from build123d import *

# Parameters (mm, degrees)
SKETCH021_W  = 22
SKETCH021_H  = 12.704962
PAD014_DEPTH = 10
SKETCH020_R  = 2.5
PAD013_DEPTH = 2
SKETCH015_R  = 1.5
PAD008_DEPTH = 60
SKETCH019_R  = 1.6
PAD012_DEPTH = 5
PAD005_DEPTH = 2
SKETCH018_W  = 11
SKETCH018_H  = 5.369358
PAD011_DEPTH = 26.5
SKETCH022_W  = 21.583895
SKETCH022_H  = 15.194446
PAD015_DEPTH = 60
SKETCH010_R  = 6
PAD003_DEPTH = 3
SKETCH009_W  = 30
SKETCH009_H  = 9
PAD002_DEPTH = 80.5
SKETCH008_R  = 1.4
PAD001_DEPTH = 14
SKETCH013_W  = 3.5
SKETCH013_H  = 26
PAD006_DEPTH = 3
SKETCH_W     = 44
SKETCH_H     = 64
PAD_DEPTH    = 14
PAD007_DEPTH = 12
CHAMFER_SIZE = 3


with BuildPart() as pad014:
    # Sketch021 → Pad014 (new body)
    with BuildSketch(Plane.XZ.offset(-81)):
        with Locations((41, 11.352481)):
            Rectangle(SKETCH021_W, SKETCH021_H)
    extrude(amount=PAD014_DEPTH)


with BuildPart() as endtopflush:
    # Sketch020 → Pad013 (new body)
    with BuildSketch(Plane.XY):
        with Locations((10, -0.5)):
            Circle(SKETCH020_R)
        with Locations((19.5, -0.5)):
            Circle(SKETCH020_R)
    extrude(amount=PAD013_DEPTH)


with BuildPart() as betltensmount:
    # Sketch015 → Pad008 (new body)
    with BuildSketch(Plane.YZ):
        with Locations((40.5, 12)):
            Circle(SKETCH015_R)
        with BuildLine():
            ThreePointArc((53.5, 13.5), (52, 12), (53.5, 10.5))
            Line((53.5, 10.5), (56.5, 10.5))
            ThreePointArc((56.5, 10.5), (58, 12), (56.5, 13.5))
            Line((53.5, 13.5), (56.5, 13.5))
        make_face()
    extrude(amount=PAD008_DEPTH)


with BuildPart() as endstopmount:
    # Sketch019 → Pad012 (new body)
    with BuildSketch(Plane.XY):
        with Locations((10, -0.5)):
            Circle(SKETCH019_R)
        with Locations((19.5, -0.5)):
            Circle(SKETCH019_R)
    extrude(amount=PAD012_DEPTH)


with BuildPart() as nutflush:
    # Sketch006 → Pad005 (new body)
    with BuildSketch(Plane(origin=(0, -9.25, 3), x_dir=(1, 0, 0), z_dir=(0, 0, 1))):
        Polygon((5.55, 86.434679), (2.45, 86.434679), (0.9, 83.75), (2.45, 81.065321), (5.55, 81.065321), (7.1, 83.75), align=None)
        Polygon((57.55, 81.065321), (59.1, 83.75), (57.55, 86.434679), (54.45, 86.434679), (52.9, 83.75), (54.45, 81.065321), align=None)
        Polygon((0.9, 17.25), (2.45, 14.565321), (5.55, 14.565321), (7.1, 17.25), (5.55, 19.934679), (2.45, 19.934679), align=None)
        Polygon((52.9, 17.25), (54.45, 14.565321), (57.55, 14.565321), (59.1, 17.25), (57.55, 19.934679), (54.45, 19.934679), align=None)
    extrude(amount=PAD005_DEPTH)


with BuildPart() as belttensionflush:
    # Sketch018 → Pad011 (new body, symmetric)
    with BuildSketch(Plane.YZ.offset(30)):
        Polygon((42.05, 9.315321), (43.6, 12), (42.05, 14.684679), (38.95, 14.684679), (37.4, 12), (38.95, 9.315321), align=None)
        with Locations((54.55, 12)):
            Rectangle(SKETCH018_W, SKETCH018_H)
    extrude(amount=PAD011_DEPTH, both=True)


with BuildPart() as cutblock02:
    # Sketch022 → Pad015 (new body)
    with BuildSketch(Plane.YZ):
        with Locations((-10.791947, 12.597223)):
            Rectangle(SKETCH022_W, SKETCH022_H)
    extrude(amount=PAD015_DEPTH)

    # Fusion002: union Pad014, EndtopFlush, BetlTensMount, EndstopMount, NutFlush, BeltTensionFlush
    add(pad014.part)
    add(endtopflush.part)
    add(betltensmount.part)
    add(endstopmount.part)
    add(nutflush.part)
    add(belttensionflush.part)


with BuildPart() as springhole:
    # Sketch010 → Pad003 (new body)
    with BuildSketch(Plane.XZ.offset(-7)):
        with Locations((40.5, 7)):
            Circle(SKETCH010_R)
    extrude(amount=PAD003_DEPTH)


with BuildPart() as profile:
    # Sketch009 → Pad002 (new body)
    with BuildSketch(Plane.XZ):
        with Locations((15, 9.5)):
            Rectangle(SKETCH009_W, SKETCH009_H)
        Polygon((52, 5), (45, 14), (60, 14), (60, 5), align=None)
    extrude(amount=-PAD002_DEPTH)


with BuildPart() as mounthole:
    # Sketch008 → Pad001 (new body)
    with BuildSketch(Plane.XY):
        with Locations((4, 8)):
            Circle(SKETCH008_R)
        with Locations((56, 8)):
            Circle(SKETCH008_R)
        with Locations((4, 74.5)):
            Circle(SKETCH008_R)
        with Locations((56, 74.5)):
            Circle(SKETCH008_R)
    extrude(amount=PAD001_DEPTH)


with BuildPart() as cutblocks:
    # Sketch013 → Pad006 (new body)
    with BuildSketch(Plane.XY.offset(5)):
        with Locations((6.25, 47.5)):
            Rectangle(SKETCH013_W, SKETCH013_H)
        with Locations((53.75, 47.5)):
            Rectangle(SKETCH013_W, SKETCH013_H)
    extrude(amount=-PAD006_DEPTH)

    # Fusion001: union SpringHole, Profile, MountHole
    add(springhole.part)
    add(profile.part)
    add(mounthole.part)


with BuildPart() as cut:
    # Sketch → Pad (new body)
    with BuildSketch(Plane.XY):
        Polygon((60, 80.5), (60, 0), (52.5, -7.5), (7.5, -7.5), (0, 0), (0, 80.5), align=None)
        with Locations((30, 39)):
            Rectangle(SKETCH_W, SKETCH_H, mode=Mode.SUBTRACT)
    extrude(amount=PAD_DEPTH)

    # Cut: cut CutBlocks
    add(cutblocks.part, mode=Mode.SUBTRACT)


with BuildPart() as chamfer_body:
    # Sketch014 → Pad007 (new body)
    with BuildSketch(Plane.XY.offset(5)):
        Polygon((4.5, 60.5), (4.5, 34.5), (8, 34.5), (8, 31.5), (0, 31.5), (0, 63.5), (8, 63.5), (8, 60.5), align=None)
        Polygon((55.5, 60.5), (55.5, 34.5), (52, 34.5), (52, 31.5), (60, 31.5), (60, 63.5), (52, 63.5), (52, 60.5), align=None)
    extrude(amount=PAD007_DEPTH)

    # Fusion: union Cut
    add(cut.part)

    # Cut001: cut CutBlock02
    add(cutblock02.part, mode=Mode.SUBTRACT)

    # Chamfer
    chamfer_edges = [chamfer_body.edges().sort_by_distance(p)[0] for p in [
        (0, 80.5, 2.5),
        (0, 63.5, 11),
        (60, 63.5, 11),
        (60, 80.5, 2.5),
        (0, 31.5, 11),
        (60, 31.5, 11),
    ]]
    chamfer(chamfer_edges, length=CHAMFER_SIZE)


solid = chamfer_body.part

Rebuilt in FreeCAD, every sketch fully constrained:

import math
import FreeCAD as App
import Part
import Sketcher

V = App.Vector
Q = App.Units.Quantity


def edges_at(feature, points):
    """Names of the edges that pass closest to the given points."""
    edges = feature.Shape.Edges
    near = lambda p: min(range(len(edges)), key=lambda i: edges[i].distToShape(Part.Vertex(*p))[0])
    return sorted({f"Edge{near(p) + 1}" for p in points})

doc = App.newDocument("Part")
body = doc.addObject("PartDesign::Body", "Body")

# Sketch on XZ plane
sketch1 = body.newObject("Sketcher::SketchObject", "Sketch")
sketch1.AttachmentSupport = (doc.getObject("XZ_Plane"), [""])
sketch1.MapMode = "FlatFace"
sketch1.AttachmentOffset = App.Placement(V(0, 0, -81), App.Rotation())
sketch1.addGeometry(Part.LineSegment(V(30, 17.704962, 0), V(30, 5, 0)), False)
sketch1.addGeometry(Part.LineSegment(V(30, 5, 0), V(52, 5, 0)), False)
sketch1.addGeometry(Part.LineSegment(V(52, 5, 0), V(52, 17.704962, 0)), False)
sketch1.addGeometry(Part.LineSegment(V(52, 17.704962, 0), V(30, 17.704962, 0)), False)
sketch1.addConstraint(Sketcher.Constraint("Coincident", 0, 2, 1, 1))
sketch1.addConstraint(Sketcher.Constraint("Coincident", 1, 2, 2, 1))
sketch1.addConstraint(Sketcher.Constraint("Coincident", 2, 2, 3, 1))
sketch1.addConstraint(Sketcher.Constraint("Coincident", 3, 2, 0, 1))
sketch1.addConstraint(Sketcher.Constraint("Vertical", 0))
sketch1.addConstraint(Sketcher.Constraint("Horizontal", 1))
sketch1.addConstraint(Sketcher.Constraint("Vertical", 2))
sketch1.addConstraint(Sketcher.Constraint("Horizontal", 3))
sketch1.addConstraint(Sketcher.Constraint("DistanceX", 1, 1, 1, 2, Q("22 mm")))
sketch1.addConstraint(Sketcher.Constraint("DistanceX", -1, 1, 0, 2, Q("30 mm")))
sketch1.addConstraint(Sketcher.Constraint("DistanceY", -1, 1, 0, 2, Q("5 mm")))
sketch1.addConstraint(Sketcher.Constraint("DistanceY", 0, 2, 0, 1, Q("12.704962 mm")))
pad1 = body.newObject("PartDesign::Pad", "Pad")
pad1.Profile = sketch1
pad1.Length = 10
body2 = doc.addObject("PartDesign::Body", "Body001")
body2.AllowCompound = True

# Sketch on XY plane
sketch2 = body2.newObject("Sketcher::SketchObject", "Sketch001")
sketch2.AttachmentSupport = (doc.getObject("XY_Plane001"), [""])
sketch2.MapMode = "FlatFace"
sketch2.addGeometry(Part.Circle(V(10, -0.5, 0), V(0, 0, 1), 2.5), False)
sketch2.addGeometry(Part.Circle(V(19.5, -0.5, 0), V(0, 0, 1), 2.5), False)
sketch2.addConstraint(Sketcher.Constraint("Equal", 0, 1))
sketch2.addConstraint(Sketcher.Constraint("Horizontal", 0, 3, 1, 3))
sketch2.addConstraint(Sketcher.Constraint("Diameter", 0, Q("5 mm")))
sketch2.addConstraint(Sketcher.Constraint("DistanceX", -1, 1, 0, 3, Q("10 mm")))
sketch2.addConstraint(Sketcher.Constraint("DistanceY", 0, 3, -1, 1, Q("0.5 mm")))
sketch2.addConstraint(Sketcher.Constraint("DistanceX", -1, 1, 1, 3, Q("19.5 mm")))
pad2 = body2.newObject("PartDesign::Pad", "Pad001")
pad2.Profile = sketch2
pad2.Length = 2
body3 = doc.addObject("PartDesign::Body", "Body002")
body3.AllowCompound = True

# Sketch on YZ plane
sketch3 = body3.newObject("Sketcher::SketchObject", "Sketch002")
sketch3.AttachmentSupport = (doc.getObject("YZ_Plane002"), [""])
sketch3.MapMode = "FlatFace"
sketch3.addGeometry(Part.Circle(V(40.5, 12, 0), V(0, 0, 1), 1.5), False)
sketch3.addGeometry(Part.ArcOfCircle(Part.Circle(V(53.5, 12, 0), V(0, 0, 1), 1.5), math.radians(90), math.radians(270)), False)
sketch3.addGeometry(Part.LineSegment(V(53.5, 10.5, 0), V(56.5, 10.5, 0)), False)
sketch3.addGeometry(Part.ArcOfCircle(Part.Circle(V(56.5, 12, 0), V(0, 0, 1), 1.5), math.radians(-90), math.radians(90)), False)
sketch3.addGeometry(Part.LineSegment(V(56.5, 13.5, 0), V(53.5, 13.5, 0)), False)
sketch3.addConstraint(Sketcher.Constraint("Tangent", 1, 2, 2, 1))
sketch3.addConstraint(Sketcher.Constraint("Tangent", 2, 2, 3, 1))
sketch3.addConstraint(Sketcher.Constraint("Tangent", 3, 2, 4, 1))
sketch3.addConstraint(Sketcher.Constraint("Tangent", 4, 2, 1, 1))
sketch3.addConstraint(Sketcher.Constraint("Horizontal", 2))
sketch3.addConstraint(Sketcher.Constraint("Horizontal", 4))
sketch3.addConstraint(Sketcher.Constraint("Equal", 0, 1))
sketch3.addConstraint(Sketcher.Constraint("Horizontal", 0, 3, 1, 3))
sketch3.addConstraint(Sketcher.Constraint("Diameter", 0, Q("3 mm")))
sketch3.addConstraint(Sketcher.Constraint("DistanceX", 2, 1, 2, 2, Q("3 mm")))
sketch3.addConstraint(Sketcher.Constraint("DistanceY", -1, 1, 0, 3, Q("12 mm")))
sketch3.addConstraint(Sketcher.Constraint("DistanceX", 0, 3, 1, 3, Q("13 mm")))
sketch3.addConstraint(Sketcher.Constraint("DistanceX", -1, 1, 0, 3, Q("40.5 mm")))
pad3 = body3.newObject("PartDesign::Pad", "Pad002")
pad3.Profile = sketch3
pad3.Length = 60
body4 = doc.addObject("PartDesign::Body", "Body003")
body4.AllowCompound = True

# Sketch on XY plane
sketch4 = body4.newObject("Sketcher::SketchObject", "Sketch003")
sketch4.AttachmentSupport = (doc.getObject("XY_Plane003"), [""])
sketch4.MapMode = "FlatFace"
sketch4.addGeometry(Part.Circle(V(10, -0.5, 0), V(0, 0, 1), 1.6), False)
sketch4.addGeometry(Part.Circle(V(19.5, -0.5, 0), V(0, 0, 1), 1.6), False)
sketch4.addConstraint(Sketcher.Constraint("Equal", 0, 1))
sketch4.addConstraint(Sketcher.Constraint("Horizontal", 0, 3, 1, 3))
sketch4.addConstraint(Sketcher.Constraint("Diameter", 0, Q("3.2 mm")))
sketch4.addConstraint(Sketcher.Constraint("DistanceX", -1, 1, 0, 3, Q("10 mm")))
sketch4.addConstraint(Sketcher.Constraint("DistanceY", 0, 3, -1, 1, Q("0.5 mm")))
sketch4.addConstraint(Sketcher.Constraint("DistanceX", -1, 1, 1, 3, Q("19.5 mm")))
pad4 = body4.newObject("PartDesign::Pad", "Pad003")
pad4.Profile = sketch4
pad4.Length = 5
body5 = doc.addObject("PartDesign::Body", "Body004")
body5.AllowCompound = True

# Sketch on XY plane
sketch5 = body5.newObject("Sketcher::SketchObject", "Sketch004")
sketch5.AttachmentSupport = (doc.getObject("XY_Plane004"), [""])
sketch5.MapMode = "FlatFace"
sketch5.AttachmentOffset = App.Placement(V(0, 0, 3), App.Rotation())
sketch5.addGeometry(Part.LineSegment(V(5.55, 77.184679, 0), V(2.45, 77.184679, 0)), False)
sketch5.addGeometry(Part.LineSegment(V(2.45, 77.184679, 0), V(0.9, 74.5, 0)), False)
sketch5.addGeometry(Part.LineSegment(V(0.9, 74.5, 0), V(2.45, 71.815321, 0)), False)
sketch5.addGeometry(Part.LineSegment(V(2.45, 71.815321, 0), V(5.55, 71.815321, 0)), False)
sketch5.addGeometry(Part.LineSegment(V(5.55, 71.815321, 0), V(7.1, 74.5, 0)), False)
sketch5.addGeometry(Part.LineSegment(V(7.1, 74.5, 0), V(5.55, 77.184679, 0)), False)
sketch5.addGeometry(Part.LineSegment(V(57.55, 71.815321, 0), V(59.1, 74.5, 0)), False)
sketch5.addGeometry(Part.LineSegment(V(59.1, 74.5, 0), V(57.55, 77.184679, 0)), False)
sketch5.addGeometry(Part.LineSegment(V(57.55, 77.184679, 0), V(54.45, 77.184679, 0)), False)
sketch5.addGeometry(Part.LineSegment(V(54.45, 77.184679, 0), V(52.9, 74.5, 0)), False)
sketch5.addGeometry(Part.LineSegment(V(52.9, 74.5, 0), V(54.45, 71.815321, 0)), False)
sketch5.addGeometry(Part.LineSegment(V(54.45, 71.815321, 0), V(57.55, 71.815321, 0)), False)
sketch5.addGeometry(Part.LineSegment(V(0.9, 8, 0), V(2.45, 5.315321, 0)), False)
sketch5.addGeometry(Part.LineSegment(V(2.45, 5.315321, 0), V(5.55, 5.315321, 0)), False)
sketch5.addGeometry(Part.LineSegment(V(5.55, 5.315321, 0), V(7.1, 8, 0)), False)
sketch5.addGeometry(Part.LineSegment(V(7.1, 8, 0), V(5.55, 10.684679, 0)), False)
sketch5.addGeometry(Part.LineSegment(V(5.55, 10.684679, 0), V(2.45, 10.684679, 0)), False)
sketch5.addGeometry(Part.LineSegment(V(2.45, 10.684679, 0), V(0.9, 8, 0)), False)
sketch5.addGeometry(Part.LineSegment(V(52.9, 8, 0), V(54.45, 5.315321, 0)), False)
sketch5.addGeometry(Part.LineSegment(V(54.45, 5.315321, 0), V(57.55, 5.315321, 0)), False)
sketch5.addGeometry(Part.LineSegment(V(57.55, 5.315321, 0), V(59.1, 8, 0)), False)
sketch5.addGeometry(Part.LineSegment(V(59.1, 8, 0), V(57.55, 10.684679, 0)), False)
sketch5.addGeometry(Part.LineSegment(V(57.55, 10.684679, 0), V(54.45, 10.684679, 0)), False)
sketch5.addGeometry(Part.LineSegment(V(54.45, 10.684679, 0), V(52.9, 8, 0)), False)
sketch5.addConstraint(Sketcher.Constraint("Coincident", 0, 2, 1, 1))
sketch5.addConstraint(Sketcher.Constraint("Coincident", 1, 2, 2, 1))
sketch5.addConstraint(Sketcher.Constraint("Coincident", 2, 2, 3, 1))
sketch5.addConstraint(Sketcher.Constraint("Coincident", 3, 2, 4, 1))
sketch5.addConstraint(Sketcher.Constraint("Coincident", 4, 2, 5, 1))
sketch5.addConstraint(Sketcher.Constraint("Coincident", 5, 2, 0, 1))
sketch5.addConstraint(Sketcher.Constraint("Coincident", 6, 2, 7, 1))
sketch5.addConstraint(Sketcher.Constraint("Coincident", 7, 2, 8, 1))
sketch5.addConstraint(Sketcher.Constraint("Coincident", 8, 2, 9, 1))
sketch5.addConstraint(Sketcher.Constraint("Coincident", 9, 2, 10, 1))
sketch5.addConstraint(Sketcher.Constraint("Coincident", 10, 2, 11, 1))
sketch5.addConstraint(Sketcher.Constraint("Coincident", 11, 2, 6, 1))
sketch5.addConstraint(Sketcher.Constraint("Coincident", 12, 2, 13, 1))
sketch5.addConstraint(Sketcher.Constraint("Coincident", 13, 2, 14, 1))
sketch5.addConstraint(Sketcher.Constraint("Coincident", 14, 2, 15, 1))
sketch5.addConstraint(Sketcher.Constraint("Coincident", 15, 2, 16, 1))
sketch5.addConstraint(Sketcher.Constraint("Coincident", 16, 2, 17, 1))
sketch5.addConstraint(Sketcher.Constraint("Coincident", 17, 2, 12, 1))
sketch5.addConstraint(Sketcher.Constraint("Coincident", 18, 2, 19, 1))
sketch5.addConstraint(Sketcher.Constraint("Coincident", 19, 2, 20, 1))
sketch5.addConstraint(Sketcher.Constraint("Coincident", 20, 2, 21, 1))
sketch5.addConstraint(Sketcher.Constraint("Coincident", 21, 2, 22, 1))
sketch5.addConstraint(Sketcher.Constraint("Coincident", 22, 2, 23, 1))
sketch5.addConstraint(Sketcher.Constraint("Coincident", 23, 2, 18, 1))
sketch5.addConstraint(Sketcher.Constraint("Horizontal", 0))
sketch5.addConstraint(Sketcher.Constraint("Horizontal", 3))
sketch5.addConstraint(Sketcher.Constraint("Horizontal", 8))
sketch5.addConstraint(Sketcher.Constraint("Horizontal", 11))
sketch5.addConstraint(Sketcher.Constraint("Horizontal", 13))
sketch5.addConstraint(Sketcher.Constraint("Horizontal", 16))
sketch5.addConstraint(Sketcher.Constraint("Horizontal", 19))
sketch5.addConstraint(Sketcher.Constraint("Horizontal", 22))
sketch5.addConstraint(Sketcher.Constraint("Parallel", 1, 4))
sketch5.addConstraint(Sketcher.Constraint("Parallel", 2, 5))
sketch5.addConstraint(Sketcher.Constraint("Parallel", 4, 6))
sketch5.addConstraint(Sketcher.Constraint("Parallel", 5, 7))
sketch5.addConstraint(Sketcher.Constraint("Parallel", 6, 9))
sketch5.addConstraint(Sketcher.Constraint("Parallel", 7, 10))
sketch5.addConstraint(Sketcher.Constraint("Parallel", 10, 12))
sketch5.addConstraint(Sketcher.Constraint("Parallel", 9, 14))
sketch5.addConstraint(Sketcher.Constraint("Parallel", 12, 15))
sketch5.addConstraint(Sketcher.Constraint("Parallel", 14, 17))
sketch5.addConstraint(Sketcher.Constraint("Parallel", 15, 18))
sketch5.addConstraint(Sketcher.Constraint("Parallel", 17, 20))
sketch5.addConstraint(Sketcher.Constraint("Parallel", 18, 21))
sketch5.addConstraint(Sketcher.Constraint("Parallel", 20, 23))
sketch5.addConstraint(Sketcher.Constraint("Horizontal", 1, 2, 4, 2))
sketch5.addConstraint(Sketcher.Constraint("Horizontal", 4, 2, 6, 2))
sketch5.addConstraint(Sketcher.Constraint("Horizontal", 5, 2, 7, 2))
sketch5.addConstraint(Sketcher.Constraint("Horizontal", 6, 2, 9, 2))
sketch5.addConstraint(Sketcher.Constraint("Horizontal", 3, 2, 10, 2))
sketch5.addConstraint(Sketcher.Constraint("Horizontal", 14, 2, 17, 2))
sketch5.addConstraint(Sketcher.Constraint("Horizontal", 13, 2, 18, 2))
sketch5.addConstraint(Sketcher.Constraint("Horizontal", 17, 2, 20, 2))
sketch5.addConstraint(Sketcher.Constraint("Horizontal", 16, 2, 21, 2))
sketch5.addConstraint(Sketcher.Constraint("Horizontal", 20, 2, 23, 2))
sketch5.addConstraint(Sketcher.Constraint("Vertical", 0, 2, 2, 2))
sketch5.addConstraint(Sketcher.Constraint("Vertical", 3, 2, 5, 2))
sketch5.addConstraint(Sketcher.Constraint("Vertical", 2, 2, 12, 2))
sketch5.addConstraint(Sketcher.Constraint("Vertical", 5, 2, 13, 2))
sketch5.addConstraint(Sketcher.Constraint("Vertical", 4, 2, 14, 2))
sketch5.addConstraint(Sketcher.Constraint("Vertical", 13, 2, 15, 2))
sketch5.addConstraint(Sketcher.Constraint("Vertical", 10, 2, 18, 2))
sketch5.addConstraint(Sketcher.Constraint("Vertical", 11, 2, 19, 2))
sketch5.addConstraint(Sketcher.Constraint("Equal", 3, 8))
sketch5.addConstraint(Sketcher.Constraint("Angle", 1, Q("-119.999998 deg")))
sketch5.addConstraint(Sketcher.Constraint("DistanceX", 0, 2, 0, 1, Q("3.1 mm")))
sketch5.addConstraint(Sketcher.Constraint("DistanceY", -1, 1, 14, 2, Q("8 mm")))
sketch5.addConstraint(Sketcher.Constraint("DistanceX", 4, 2, 6, 2, Q("52 mm")))
sketch5.addConstraint(Sketcher.Constraint("Distance", 1, Q("3.1 mm")))
sketch5.addConstraint(Sketcher.Constraint("DistanceX", -1, 1, 1, 2, Q("0.9 mm")))
sketch5.addConstraint(Sketcher.Constraint("DistanceY", -1, 1, 1, 2, Q("74.5 mm")))
pad5 = body5.newObject("PartDesign::Pad", "Pad004")
pad5.Profile = sketch5
pad5.Length = 2
body6 = doc.addObject("PartDesign::Body", "Body005")
body6.AllowCompound = True

# Sketch on YZ plane
sketch6 = body6.newObject("Sketcher::SketchObject", "Sketch005")
sketch6.AttachmentSupport = (doc.getObject("YZ_Plane005"), [""])
sketch6.MapMode = "FlatFace"
sketch6.AttachmentOffset = App.Placement(V(0, 0, 30), App.Rotation())
sketch6.addGeometry(Part.LineSegment(V(42.05, 9.315321, 0), V(43.6, 12, 0)), False)
sketch6.addGeometry(Part.LineSegment(V(43.6, 12, 0), V(42.05, 14.684679, 0)), False)
sketch6.addGeometry(Part.LineSegment(V(42.05, 14.684679, 0), V(38.95, 14.684679, 0)), False)
sketch6.addGeometry(Part.LineSegment(V(38.95, 14.684679, 0), V(37.4, 12, 0)), False)
sketch6.addGeometry(Part.LineSegment(V(37.4, 12, 0), V(38.95, 9.315321, 0)), False)
sketch6.addGeometry(Part.LineSegment(V(38.95, 9.315321, 0), V(42.05, 9.315321, 0)), False)
sketch6.addGeometry(Part.LineSegment(V(49.05, 14.684679, 0), V(49.05, 9.315321, 0)), False)
sketch6.addGeometry(Part.LineSegment(V(49.05, 9.315321, 0), V(60.05, 9.315321, 0)), False)
sketch6.addGeometry(Part.LineSegment(V(60.05, 9.315321, 0), V(60.05, 14.684679, 0)), False)
sketch6.addGeometry(Part.LineSegment(V(60.05, 14.684679, 0), V(49.05, 14.684679, 0)), False)
sketch6.addConstraint(Sketcher.Constraint("Coincident", 0, 2, 1, 1))
sketch6.addConstraint(Sketcher.Constraint("Coincident", 1, 2, 2, 1))
sketch6.addConstraint(Sketcher.Constraint("Coincident", 2, 2, 3, 1))
sketch6.addConstraint(Sketcher.Constraint("Coincident", 3, 2, 4, 1))
sketch6.addConstraint(Sketcher.Constraint("Coincident", 4, 2, 5, 1))
sketch6.addConstraint(Sketcher.Constraint("Coincident", 5, 2, 0, 1))
sketch6.addConstraint(Sketcher.Constraint("Coincident", 6, 2, 7, 1))
sketch6.addConstraint(Sketcher.Constraint("Coincident", 7, 2, 8, 1))
sketch6.addConstraint(Sketcher.Constraint("Coincident", 8, 2, 9, 1))
sketch6.addConstraint(Sketcher.Constraint("Coincident", 9, 2, 6, 1))
sketch6.addConstraint(Sketcher.Constraint("Horizontal", 2))
sketch6.addConstraint(Sketcher.Constraint("Horizontal", 5))
sketch6.addConstraint(Sketcher.Constraint("Vertical", 6))
sketch6.addConstraint(Sketcher.Constraint("Horizontal", 7))
sketch6.addConstraint(Sketcher.Constraint("Vertical", 8))
sketch6.addConstraint(Sketcher.Constraint("Horizontal", 9))
sketch6.addConstraint(Sketcher.Constraint("Parallel", 0, 3))
sketch6.addConstraint(Sketcher.Constraint("Parallel", 1, 4))
sketch6.addConstraint(Sketcher.Constraint("Horizontal", 0, 2, 3, 2))
sketch6.addConstraint(Sketcher.Constraint("Horizontal", 5, 2, 6, 2))
sketch6.addConstraint(Sketcher.Constraint("Horizontal", 2, 2, 8, 2))
sketch6.addConstraint(Sketcher.Constraint("Vertical", 2, 2, 4, 2))
sketch6.addConstraint(Sketcher.Constraint("Vertical", 1, 2, 5, 2))
sketch6.addConstraint(Sketcher.Constraint("DistanceX", 7, 1, 7, 2, Q("11 mm")))
sketch6.addConstraint(Sketcher.Constraint("Angle", 0, Q("60.000002 deg")))
sketch6.addConstraint(Sketcher.Constraint("DistanceX", 2, 2, 2, 1, Q("3.1 mm")))
sketch6.addConstraint(Sketcher.Constraint("DistanceY", -1, 1, 0, 2, Q("12 mm")))
sketch6.addConstraint(Sketcher.Constraint("DistanceX", 5, 2, 6, 2, Q("7 mm")))
sketch6.addConstraint(Sketcher.Constraint("Distance", 0, Q("3.1 mm")))
sketch6.addConstraint(Sketcher.Constraint("DistanceX", -1, 1, 0, 2, Q("43.6 mm")))
pad6 = body6.newObject("PartDesign::Pad", "Pad005")
pad6.Profile = sketch6
pad6.Length = 53
pad6.Midplane = True
body7 = doc.addObject("PartDesign::Body", "Body006")
body7.AllowCompound = True

# Sketch on YZ plane
sketch7 = body7.newObject("Sketcher::SketchObject", "Sketch006")
sketch7.AttachmentSupport = (doc.getObject("YZ_Plane006"), [""])
sketch7.MapMode = "FlatFace"
sketch7.addGeometry(Part.LineSegment(V(-21.583894, 20.194446, 0), V(-21.583894, 5, 0)), False)
sketch7.addGeometry(Part.LineSegment(V(-21.583894, 5, 0), V(0, 5, 0)), False)
sketch7.addGeometry(Part.LineSegment(V(0, 5, 0), V(0, 20.194446, 0)), False)
sketch7.addGeometry(Part.LineSegment(V(0, 20.194446, 0), V(-21.583894, 20.194446, 0)), False)
sketch7.addConstraint(Sketcher.Constraint("Coincident", 0, 2, 1, 1))
sketch7.addConstraint(Sketcher.Constraint("Coincident", 1, 2, 2, 1))
sketch7.addConstraint(Sketcher.Constraint("Coincident", 2, 2, 3, 1))
sketch7.addConstraint(Sketcher.Constraint("Coincident", 3, 2, 0, 1))
sketch7.addConstraint(Sketcher.Constraint("Vertical", 0))
sketch7.addConstraint(Sketcher.Constraint("Horizontal", 1))
sketch7.addConstraint(Sketcher.Constraint("Vertical", 2))
sketch7.addConstraint(Sketcher.Constraint("Horizontal", 3))
sketch7.addConstraint(Sketcher.Constraint("PointOnObject", 1, 2, -2))
sketch7.addConstraint(Sketcher.Constraint("DistanceY", -1, 1, 0, 2, Q("5 mm")))
sketch7.addConstraint(Sketcher.Constraint("DistanceX", 1, 1, 1, 2, Q("21.583895 mm")))
sketch7.addConstraint(Sketcher.Constraint("DistanceY", 0, 2, 0, 1, Q("15.194446 mm")))
pad7 = body7.newObject("PartDesign::Pad", "Pad006")
pad7.Profile = sketch7
pad7.Length = 60
doc.recompute()

boolean = body7.newObject("PartDesign::Boolean", "Boolean")
boolean.Type = "Fuse"
boolean.addObjects([body])
doc.recompute()

boolean2 = body7.newObject("PartDesign::Boolean", "Boolean001")
boolean2.Type = "Fuse"
boolean2.addObjects([body2])
doc.recompute()

boolean3 = body7.newObject("PartDesign::Boolean", "Boolean002")
boolean3.Type = "Fuse"
boolean3.addObjects([body3])
doc.recompute()

boolean4 = body7.newObject("PartDesign::Boolean", "Boolean003")
boolean4.Type = "Fuse"
boolean4.addObjects([body4])
doc.recompute()

boolean5 = body7.newObject("PartDesign::Boolean", "Boolean004")
boolean5.Type = "Fuse"
boolean5.addObjects([body5])
doc.recompute()

boolean6 = body7.newObject("PartDesign::Boolean", "Boolean005")
boolean6.Type = "Fuse"
boolean6.addObjects([body6])
body8 = doc.addObject("PartDesign::Body", "Body007")

# Sketch on XZ plane
sketch8 = body8.newObject("Sketcher::SketchObject", "Sketch007")
sketch8.AttachmentSupport = (doc.getObject("XZ_Plane007"), [""])
sketch8.MapMode = "FlatFace"
sketch8.AttachmentOffset = App.Placement(V(0, 0, -7), App.Rotation())
sketch8.addGeometry(Part.Circle(V(40.5, 7, 0), V(0, 0, 1), 6), False)
sketch8.addConstraint(Sketcher.Constraint("Diameter", 0, Q("12 mm")))
sketch8.addConstraint(Sketcher.Constraint("DistanceY", -1, 1, 0, 3, Q("7 mm")))
sketch8.addConstraint(Sketcher.Constraint("DistanceX", -1, 1, 0, 3, Q("40.5 mm")))
pad8 = body8.newObject("PartDesign::Pad", "Pad007")
pad8.Profile = sketch8
pad8.Length = 3
body9 = doc.addObject("PartDesign::Body", "Body008")
body9.AllowCompound = True

# Sketch on XZ plane
sketch9 = body9.newObject("Sketcher::SketchObject", "Sketch008")
sketch9.AttachmentSupport = (doc.getObject("XZ_Plane008"), [""])
sketch9.MapMode = "FlatFace"
sketch9.addGeometry(Part.LineSegment(V(0, 14, 0), V(0, 5, 0)), False)
sketch9.addGeometry(Part.LineSegment(V(0, 5, 0), V(30, 5, 0)), False)
sketch9.addGeometry(Part.LineSegment(V(30, 5, 0), V(30, 14, 0)), False)
sketch9.addGeometry(Part.LineSegment(V(30, 14, 0), V(0, 14, 0)), False)
sketch9.addGeometry(Part.LineSegment(V(45, 14, 0), V(52, 5, 0)), False)
sketch9.addGeometry(Part.LineSegment(V(52, 5, 0), V(60, 5, 0)), False)
sketch9.addGeometry(Part.LineSegment(V(60, 5, 0), V(60, 14, 0)), False)
sketch9.addGeometry(Part.LineSegment(V(60, 14, 0), V(45, 14, 0)), False)
sketch9.addConstraint(Sketcher.Constraint("Coincident", 0, 2, 1, 1))
sketch9.addConstraint(Sketcher.Constraint("Coincident", 1, 2, 2, 1))
sketch9.addConstraint(Sketcher.Constraint("Coincident", 2, 2, 3, 1))
sketch9.addConstraint(Sketcher.Constraint("Coincident", 3, 2, 0, 1))
sketch9.addConstraint(Sketcher.Constraint("Coincident", 4, 2, 5, 1))
sketch9.addConstraint(Sketcher.Constraint("Coincident", 5, 2, 6, 1))
sketch9.addConstraint(Sketcher.Constraint("Coincident", 6, 2, 7, 1))
sketch9.addConstraint(Sketcher.Constraint("Coincident", 7, 2, 4, 1))
sketch9.addConstraint(Sketcher.Constraint("Vertical", 0))
sketch9.addConstraint(Sketcher.Constraint("Horizontal", 1))
sketch9.addConstraint(Sketcher.Constraint("Vertical", 2))
sketch9.addConstraint(Sketcher.Constraint("Horizontal", 3))
sketch9.addConstraint(Sketcher.Constraint("Horizontal", 5))
sketch9.addConstraint(Sketcher.Constraint("Vertical", 6))
sketch9.addConstraint(Sketcher.Constraint("Horizontal", 7))
sketch9.addConstraint(Sketcher.Constraint("PointOnObject", 0, 2, -2))
sketch9.addConstraint(Sketcher.Constraint("Horizontal", 1, 2, 4, 2))
sketch9.addConstraint(Sketcher.Constraint("Horizontal", 3, 2, 6, 2))
sketch9.addConstraint(Sketcher.Constraint("DistanceX", 1, 1, 1, 2, Q("30 mm")))
sketch9.addConstraint(Sketcher.Constraint("DistanceX", 5, 1, 5, 2, Q("8 mm")))
sketch9.addConstraint(Sketcher.Constraint("DistanceX", 7, 2, 7, 1, Q("15 mm")))
sketch9.addConstraint(Sketcher.Constraint("DistanceY", 0, 2, 0, 1, Q("9 mm")))
sketch9.addConstraint(Sketcher.Constraint("DistanceY", -1, 1, 0, 2, Q("5 mm")))
sketch9.addConstraint(Sketcher.Constraint("DistanceX", -1, 1, 4, 2, Q("52 mm")))
pad9 = body9.newObject("PartDesign::Pad", "Pad008")
pad9.Profile = sketch9
pad9.Length = 80.5
pad9.Reversed = True
body10 = doc.addObject("PartDesign::Body", "Body009")
body10.AllowCompound = True

# Sketch on XY plane
sketch10 = body10.newObject("Sketcher::SketchObject", "Sketch009")
sketch10.AttachmentSupport = (doc.getObject("XY_Plane009"), [""])
sketch10.MapMode = "FlatFace"
sketch10.addGeometry(Part.Circle(V(4, 8, 0), V(0, 0, 1), 1.4), False)
sketch10.addGeometry(Part.Circle(V(56, 8, 0), V(0, 0, 1), 1.4), False)
sketch10.addGeometry(Part.Circle(V(4, 74.5, 0), V(0, 0, 1), 1.4), False)
sketch10.addGeometry(Part.Circle(V(56, 74.5, 0), V(0, 0, 1), 1.4), False)
sketch10.addConstraint(Sketcher.Constraint("Equal", 0, 1))
sketch10.addConstraint(Sketcher.Constraint("Equal", 1, 2))
sketch10.addConstraint(Sketcher.Constraint("Equal", 2, 3))
sketch10.addConstraint(Sketcher.Constraint("Horizontal", 0, 3, 1, 3))
sketch10.addConstraint(Sketcher.Constraint("Horizontal", 2, 3, 3, 3))
sketch10.addConstraint(Sketcher.Constraint("Vertical", 0, 3, 2, 3))
sketch10.addConstraint(Sketcher.Constraint("Vertical", 1, 3, 3, 3))
sketch10.addConstraint(Sketcher.Constraint("Diameter", 0, Q("2.8 mm")))
sketch10.addConstraint(Sketcher.Constraint("DistanceX", -1, 1, 0, 3, Q("4 mm")))
sketch10.addConstraint(Sketcher.Constraint("DistanceY", -1, 1, 0, 3, Q("8 mm")))
sketch10.addConstraint(Sketcher.Constraint("DistanceX", -1, 1, 1, 3, Q("56 mm")))
sketch10.addConstraint(Sketcher.Constraint("DistanceY", -1, 1, 2, 3, Q("74.5 mm")))
pad10 = body10.newObject("PartDesign::Pad", "Pad009")
pad10.Profile = sketch10
pad10.Length = 14
body11 = doc.addObject("PartDesign::Body", "Body010")
body11.AllowCompound = True

# Sketch on XY plane
sketch11 = body11.newObject("Sketcher::SketchObject", "Sketch010")
sketch11.AttachmentSupport = (doc.getObject("XY_Plane010"), [""])
sketch11.MapMode = "FlatFace"
sketch11.AttachmentOffset = App.Placement(V(0, 0, 5), App.Rotation())
sketch11.addGeometry(Part.LineSegment(V(4.5, 60.5, 0), V(4.5, 34.5, 0)), False)
sketch11.addGeometry(Part.LineSegment(V(4.5, 34.5, 0), V(8, 34.5, 0)), False)
sketch11.addGeometry(Part.LineSegment(V(8, 34.5, 0), V(8, 60.5, 0)), False)
sketch11.addGeometry(Part.LineSegment(V(8, 60.5, 0), V(4.5, 60.5, 0)), False)
sketch11.addGeometry(Part.LineSegment(V(52, 60.5, 0), V(52, 34.5, 0)), False)
sketch11.addGeometry(Part.LineSegment(V(52, 34.5, 0), V(55.5, 34.5, 0)), False)
sketch11.addGeometry(Part.LineSegment(V(55.5, 34.5, 0), V(55.5, 60.5, 0)), False)
sketch11.addGeometry(Part.LineSegment(V(55.5, 60.5, 0), V(52, 60.5, 0)), False)
sketch11.addConstraint(Sketcher.Constraint("Coincident", 0, 2, 1, 1))
sketch11.addConstraint(Sketcher.Constraint("Coincident", 1, 2, 2, 1))
sketch11.addConstraint(Sketcher.Constraint("Coincident", 2, 2, 3, 1))
sketch11.addConstraint(Sketcher.Constraint("Coincident", 3, 2, 0, 1))
sketch11.addConstraint(Sketcher.Constraint("Coincident", 4, 2, 5, 1))
sketch11.addConstraint(Sketcher.Constraint("Coincident", 5, 2, 6, 1))
sketch11.addConstraint(Sketcher.Constraint("Coincident", 6, 2, 7, 1))
sketch11.addConstraint(Sketcher.Constraint("Coincident", 7, 2, 4, 1))
sketch11.addConstraint(Sketcher.Constraint("Vertical", 0))
sketch11.addConstraint(Sketcher.Constraint("Horizontal", 1))
sketch11.addConstraint(Sketcher.Constraint("Vertical", 2))
sketch11.addConstraint(Sketcher.Constraint("Horizontal", 3))
sketch11.addConstraint(Sketcher.Constraint("Vertical", 4))
sketch11.addConstraint(Sketcher.Constraint("Horizontal", 5))
sketch11.addConstraint(Sketcher.Constraint("Vertical", 6))
sketch11.addConstraint(Sketcher.Constraint("Horizontal", 7))
sketch11.addConstraint(Sketcher.Constraint("Horizontal", 1, 2, 4, 2))
sketch11.addConstraint(Sketcher.Constraint("Horizontal", 3, 2, 6, 2))
sketch11.addConstraint(Sketcher.Constraint("Equal", 3, 5))
sketch11.addConstraint(Sketcher.Constraint("DistanceY", 0, 2, 0, 1, Q("26 mm")))
sketch11.addConstraint(Sketcher.Constraint("DistanceX", 1, 1, 1, 2, Q("3.5 mm")))
sketch11.addConstraint(Sketcher.Constraint("DistanceX", -1, 1, 1, 2, Q("8 mm")))
sketch11.addConstraint(Sketcher.Constraint("DistanceX", -1, 1, 4, 2, Q("52 mm")))
sketch11.addConstraint(Sketcher.Constraint("DistanceY", -1, 1, 0, 2, Q("34.5 mm")))
pad11 = body11.newObject("PartDesign::Pad", "Pad010")
pad11.Profile = sketch11
pad11.Length = 3
pad11.Reversed = True
doc.recompute()

boolean7 = body11.newObject("PartDesign::Boolean", "Boolean006")
boolean7.Type = "Fuse"
boolean7.addObjects([body8])
doc.recompute()

boolean8 = body11.newObject("PartDesign::Boolean", "Boolean007")
boolean8.Type = "Fuse"
boolean8.addObjects([body9])
doc.recompute()

boolean9 = body11.newObject("PartDesign::Boolean", "Boolean008")
boolean9.Type = "Fuse"
boolean9.addObjects([body10])
body12 = doc.addObject("PartDesign::Body", "Body011")

# Sketch on XY plane
sketch12 = body12.newObject("Sketcher::SketchObject", "Sketch011")
sketch12.AttachmentSupport = (doc.getObject("XY_Plane011"), [""])
sketch12.MapMode = "FlatFace"
sketch12.addGeometry(Part.LineSegment(V(60, 0, 0), V(60, 80.5, 0)), False)
sketch12.addGeometry(Part.LineSegment(V(60, 80.5, 0), V(0, 80.5, 0)), False)
sketch12.addGeometry(Part.LineSegment(V(0, 80.5, 0), V(0, 0, 0)), False)
sketch12.addGeometry(Part.LineSegment(V(0, 0, 0), V(7.5, -7.5, 0)), False)
sketch12.addGeometry(Part.LineSegment(V(7.5, -7.5, 0), V(52.5, -7.5, 0)), False)
sketch12.addGeometry(Part.LineSegment(V(52.5, -7.5, 0), V(60, 0, 0)), False)
sketch12.addGeometry(Part.LineSegment(V(8, 7, 0), V(8, 71, 0)), False)
sketch12.addGeometry(Part.LineSegment(V(8, 71, 0), V(52, 71, 0)), False)
sketch12.addGeometry(Part.LineSegment(V(52, 71, 0), V(52, 7, 0)), False)
sketch12.addGeometry(Part.LineSegment(V(52, 7, 0), V(8, 7, 0)), False)
sketch12.addConstraint(Sketcher.Constraint("Coincident", 0, 2, 1, 1))
sketch12.addConstraint(Sketcher.Constraint("Coincident", 1, 2, 2, 1))
sketch12.addConstraint(Sketcher.Constraint("Coincident", 2, 2, 3, 1))
sketch12.addConstraint(Sketcher.Constraint("Coincident", 3, 2, 4, 1))
sketch12.addConstraint(Sketcher.Constraint("Coincident", 4, 2, 5, 1))
sketch12.addConstraint(Sketcher.Constraint("Coincident", 5, 2, 0, 1))
sketch12.addConstraint(Sketcher.Constraint("Coincident", 6, 2, 7, 1))
sketch12.addConstraint(Sketcher.Constraint("Coincident", 7, 2, 8, 1))
sketch12.addConstraint(Sketcher.Constraint("Coincident", 8, 2, 9, 1))
sketch12.addConstraint(Sketcher.Constraint("Coincident", 9, 2, 6, 1))
sketch12.addConstraint(Sketcher.Constraint("Vertical", 0))
sketch12.addConstraint(Sketcher.Constraint("Horizontal", 1))
sketch12.addConstraint(Sketcher.Constraint("Vertical", 2))
sketch12.addConstraint(Sketcher.Constraint("Horizontal", 4))
sketch12.addConstraint(Sketcher.Constraint("Vertical", 6))
sketch12.addConstraint(Sketcher.Constraint("Horizontal", 7))
sketch12.addConstraint(Sketcher.Constraint("Vertical", 8))
sketch12.addConstraint(Sketcher.Constraint("Horizontal", 9))
sketch12.addConstraint(Sketcher.Constraint("Coincident", 2, 2, -1, 1))
sketch12.addConstraint(Sketcher.Constraint("PointOnObject", 5, 2, -1))
sketch12.addConstraint(Sketcher.Constraint("Perpendicular", 3, 5))
sketch12.addConstraint(Sketcher.Constraint("Equal", 3, 5))
sketch12.addConstraint(Sketcher.Constraint("DistanceX", 1, 2, 1, 1, Q("60 mm")))
sketch12.addConstraint(Sketcher.Constraint("DistanceX", 4, 1, 4, 2, Q("45 mm")))
sketch12.addConstraint(Sketcher.Constraint("DistanceX", 7, 1, 7, 2, Q("44 mm")))
sketch12.addConstraint(Sketcher.Constraint("DistanceY", 6, 1, 6, 2, Q("64 mm")))
sketch12.addConstraint(Sketcher.Constraint("DistanceY", 0, 1, 0, 2, Q("80.5 mm")))
sketch12.addConstraint(Sketcher.Constraint("DistanceX", -1, 1, 6, 2, Q("8 mm")))
sketch12.addConstraint(Sketcher.Constraint("DistanceY", -1, 1, 6, 2, Q("71 mm")))
pad12 = body12.newObject("PartDesign::Pad", "Pad011")
pad12.Profile = sketch12
pad12.Length = 14
doc.recompute()

boolean10 = body12.newObject("PartDesign::Boolean", "Boolean009")
boolean10.Type = "Cut"
boolean10.addObjects([body11])
body13 = doc.addObject("PartDesign::Body", "Body012")
body13.AllowCompound = True

# Sketch on XY plane
sketch13 = body13.newObject("Sketcher::SketchObject", "Sketch012")
sketch13.AttachmentSupport = (doc.getObject("XY_Plane012"), [""])
sketch13.MapMode = "FlatFace"
sketch13.AttachmentOffset = App.Placement(V(0, 0, 5), App.Rotation())
sketch13.addGeometry(Part.LineSegment(V(4.5, 34.5, 0), V(4.5, 60.5, 0)), False)
sketch13.addGeometry(Part.LineSegment(V(4.5, 60.5, 0), V(8, 60.5, 0)), False)
sketch13.addGeometry(Part.LineSegment(V(8, 60.5, 0), V(8, 63.5, 0)), False)
sketch13.addGeometry(Part.LineSegment(V(8, 63.5, 0), V(0, 63.5, 0)), False)
sketch13.addGeometry(Part.LineSegment(V(0, 63.5, 0), V(0, 31.5, 0)), False)
sketch13.addGeometry(Part.LineSegment(V(0, 31.5, 0), V(8, 31.5, 0)), False)
sketch13.addGeometry(Part.LineSegment(V(8, 31.5, 0), V(8, 34.5, 0)), False)
sketch13.addGeometry(Part.LineSegment(V(8, 34.5, 0), V(4.5, 34.5, 0)), False)
sketch13.addGeometry(Part.LineSegment(V(55.5, 60.5, 0), V(55.5, 34.5, 0)), False)
sketch13.addGeometry(Part.LineSegment(V(55.5, 34.5, 0), V(52, 34.5, 0)), False)
sketch13.addGeometry(Part.LineSegment(V(52, 34.5, 0), V(52, 31.5, 0)), False)
sketch13.addGeometry(Part.LineSegment(V(52, 31.5, 0), V(60, 31.5, 0)), False)
sketch13.addGeometry(Part.LineSegment(V(60, 31.5, 0), V(60, 63.5, 0)), False)
sketch13.addGeometry(Part.LineSegment(V(60, 63.5, 0), V(52, 63.5, 0)), False)
sketch13.addGeometry(Part.LineSegment(V(52, 63.5, 0), V(52, 60.5, 0)), False)
sketch13.addGeometry(Part.LineSegment(V(52, 60.5, 0), V(55.5, 60.5, 0)), False)
sketch13.addConstraint(Sketcher.Constraint("Coincident", 0, 2, 1, 1))
sketch13.addConstraint(Sketcher.Constraint("Coincident", 1, 2, 2, 1))
sketch13.addConstraint(Sketcher.Constraint("Coincident", 2, 2, 3, 1))
sketch13.addConstraint(Sketcher.Constraint("Coincident", 3, 2, 4, 1))
sketch13.addConstraint(Sketcher.Constraint("Coincident", 4, 2, 5, 1))
sketch13.addConstraint(Sketcher.Constraint("Coincident", 5, 2, 6, 1))
sketch13.addConstraint(Sketcher.Constraint("Coincident", 6, 2, 7, 1))
sketch13.addConstraint(Sketcher.Constraint("Coincident", 7, 2, 0, 1))
sketch13.addConstraint(Sketcher.Constraint("Coincident", 8, 2, 9, 1))
sketch13.addConstraint(Sketcher.Constraint("Coincident", 9, 2, 10, 1))
sketch13.addConstraint(Sketcher.Constraint("Coincident", 10, 2, 11, 1))
sketch13.addConstraint(Sketcher.Constraint("Coincident", 11, 2, 12, 1))
sketch13.addConstraint(Sketcher.Constraint("Coincident", 12, 2, 13, 1))
sketch13.addConstraint(Sketcher.Constraint("Coincident", 13, 2, 14, 1))
sketch13.addConstraint(Sketcher.Constraint("Coincident", 14, 2, 15, 1))
sketch13.addConstraint(Sketcher.Constraint("Coincident", 15, 2, 8, 1))
sketch13.addConstraint(Sketcher.Constraint("Vertical", 0))
sketch13.addConstraint(Sketcher.Constraint("Horizontal", 1))
sketch13.addConstraint(Sketcher.Constraint("Vertical", 2))
sketch13.addConstraint(Sketcher.Constraint("Horizontal", 3))
sketch13.addConstraint(Sketcher.Constraint("Vertical", 4))
sketch13.addConstraint(Sketcher.Constraint("Horizontal", 5))
sketch13.addConstraint(Sketcher.Constraint("Vertical", 6))
sketch13.addConstraint(Sketcher.Constraint("Horizontal", 7))
sketch13.addConstraint(Sketcher.Constraint("Vertical", 8))
sketch13.addConstraint(Sketcher.Constraint("Horizontal", 9))
sketch13.addConstraint(Sketcher.Constraint("Vertical", 10))
sketch13.addConstraint(Sketcher.Constraint("Horizontal", 11))
sketch13.addConstraint(Sketcher.Constraint("Vertical", 12))
sketch13.addConstraint(Sketcher.Constraint("Horizontal", 13))
sketch13.addConstraint(Sketcher.Constraint("Vertical", 14))
sketch13.addConstraint(Sketcher.Constraint("Horizontal", 15))
sketch13.addConstraint(Sketcher.Constraint("PointOnObject", 3, 2, -2))
sketch13.addConstraint(Sketcher.Constraint("Horizontal", 7, 2, 8, 2))
sketch13.addConstraint(Sketcher.Constraint("Horizontal", 5, 2, 10, 2))
sketch13.addConstraint(Sketcher.Constraint("Horizontal", 3, 2, 12, 2))
sketch13.addConstraint(Sketcher.Constraint("Horizontal", 1, 2, 14, 2))
sketch13.addConstraint(Sketcher.Constraint("Vertical", 2, 2, 5, 2))
sketch13.addConstraint(Sketcher.Constraint("Vertical", 10, 2, 13, 2))
sketch13.addConstraint(Sketcher.Constraint("Equal", 7, 9))
sketch13.addConstraint(Sketcher.Constraint("Equal", 5, 11))
sketch13.addConstraint(Sketcher.Constraint("Equal", 2, 6))
sketch13.addConstraint(Sketcher.Constraint("DistanceX", 3, 2, 3, 1, Q("8 mm")))
sketch13.addConstraint(Sketcher.Constraint("DistanceY", 0, 1, 0, 2, Q("26 mm")))
sketch13.addConstraint(Sketcher.Constraint("DistanceY", 2, 1, 2, 2, Q("3 mm")))
sketch13.addConstraint(Sketcher.Constraint("DistanceX", 1, 1, 1, 2, Q("3.5 mm")))
sketch13.addConstraint(Sketcher.Constraint("DistanceX", -1, 1, 9, 2, Q("52 mm")))
sketch13.addConstraint(Sketcher.Constraint("DistanceY", -1, 1, 0, 2, Q("60.5 mm")))
pad13 = body13.newObject("PartDesign::Pad", "Pad012")
pad13.Profile = sketch13
pad13.Length = 12
doc.recompute()

boolean11 = body13.newObject("PartDesign::Boolean", "Boolean010")
boolean11.Type = "Fuse"
boolean11.addObjects([body12])
doc.recompute()

boolean12 = body13.newObject("PartDesign::Boolean", "Boolean011")
boolean12.Type = "Cut"
boolean12.addObjects([body7])
doc.recompute()

chamfer = body13.newObject("PartDesign::Chamfer", "Chamfer")
chamfer.Base = (boolean12, edges_at(boolean12, [
    (0, 80.5, 2.5),
    (0, 63.5, 11),
    (60, 63.5, 11),
    (60, 80.5, 2.5),
    (0, 31.5, 11),
    (60, 31.5, 11),
]))
chamfer.Size = 3

doc.recompute()
